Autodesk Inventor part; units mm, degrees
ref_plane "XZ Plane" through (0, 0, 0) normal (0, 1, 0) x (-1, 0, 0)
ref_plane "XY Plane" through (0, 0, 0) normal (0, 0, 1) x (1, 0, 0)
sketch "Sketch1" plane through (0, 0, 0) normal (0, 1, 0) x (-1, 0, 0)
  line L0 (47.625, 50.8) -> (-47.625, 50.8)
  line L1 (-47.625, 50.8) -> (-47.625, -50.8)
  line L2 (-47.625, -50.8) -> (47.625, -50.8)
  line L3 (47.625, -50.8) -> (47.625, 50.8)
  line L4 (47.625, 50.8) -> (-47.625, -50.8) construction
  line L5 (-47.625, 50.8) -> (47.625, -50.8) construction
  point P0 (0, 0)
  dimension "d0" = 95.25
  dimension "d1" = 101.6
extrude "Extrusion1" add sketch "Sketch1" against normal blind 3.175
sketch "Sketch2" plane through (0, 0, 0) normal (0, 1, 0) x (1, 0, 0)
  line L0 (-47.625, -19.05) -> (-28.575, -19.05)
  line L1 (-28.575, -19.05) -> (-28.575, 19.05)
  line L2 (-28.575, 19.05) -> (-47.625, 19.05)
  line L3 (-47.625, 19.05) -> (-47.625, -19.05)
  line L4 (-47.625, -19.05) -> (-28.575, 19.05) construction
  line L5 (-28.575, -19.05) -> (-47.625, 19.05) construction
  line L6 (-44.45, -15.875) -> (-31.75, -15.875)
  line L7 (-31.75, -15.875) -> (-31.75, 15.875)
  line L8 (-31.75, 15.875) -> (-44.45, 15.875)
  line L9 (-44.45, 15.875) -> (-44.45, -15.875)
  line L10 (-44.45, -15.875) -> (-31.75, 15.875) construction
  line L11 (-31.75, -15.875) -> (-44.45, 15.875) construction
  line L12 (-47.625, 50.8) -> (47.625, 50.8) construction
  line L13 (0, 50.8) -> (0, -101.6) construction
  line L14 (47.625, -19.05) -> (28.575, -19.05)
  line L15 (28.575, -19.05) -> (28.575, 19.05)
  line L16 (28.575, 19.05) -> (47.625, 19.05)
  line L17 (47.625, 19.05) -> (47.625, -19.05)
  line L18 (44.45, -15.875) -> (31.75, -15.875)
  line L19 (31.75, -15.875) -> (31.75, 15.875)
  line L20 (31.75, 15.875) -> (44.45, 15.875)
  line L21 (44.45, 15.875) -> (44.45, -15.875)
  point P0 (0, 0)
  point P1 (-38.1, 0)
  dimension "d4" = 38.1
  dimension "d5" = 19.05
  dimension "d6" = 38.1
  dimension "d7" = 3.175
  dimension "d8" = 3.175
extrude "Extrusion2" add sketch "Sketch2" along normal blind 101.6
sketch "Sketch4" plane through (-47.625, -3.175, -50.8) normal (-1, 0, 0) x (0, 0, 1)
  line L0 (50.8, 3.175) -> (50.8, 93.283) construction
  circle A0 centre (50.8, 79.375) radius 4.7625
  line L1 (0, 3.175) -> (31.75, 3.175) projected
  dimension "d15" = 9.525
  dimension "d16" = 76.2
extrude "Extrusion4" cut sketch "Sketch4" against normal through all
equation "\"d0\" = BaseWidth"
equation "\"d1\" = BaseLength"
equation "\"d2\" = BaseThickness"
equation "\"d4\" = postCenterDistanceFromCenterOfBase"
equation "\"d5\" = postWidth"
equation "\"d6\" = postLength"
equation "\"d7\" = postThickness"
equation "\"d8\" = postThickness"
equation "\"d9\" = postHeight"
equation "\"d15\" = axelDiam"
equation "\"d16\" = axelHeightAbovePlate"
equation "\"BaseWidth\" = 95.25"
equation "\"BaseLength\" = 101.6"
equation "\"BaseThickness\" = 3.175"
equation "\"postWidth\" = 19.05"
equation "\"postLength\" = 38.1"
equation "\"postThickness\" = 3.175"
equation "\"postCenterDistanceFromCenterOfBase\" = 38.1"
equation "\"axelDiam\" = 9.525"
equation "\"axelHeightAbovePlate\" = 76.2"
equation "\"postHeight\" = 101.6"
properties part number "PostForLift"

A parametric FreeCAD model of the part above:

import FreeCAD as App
import Part
import Sketcher
from FreeCAD import Vector
Q = App.Units.Quantity


def add_polygon(sketch, points):
    """Adds a closed chain of lines whose ends are joined by coincident constraints."""
    first, n = sketch.GeometryCount, len(points)
    for a, b in zip(points, points[1:] + points[:1]):
        sketch.addGeometry(Part.LineSegment(App.Vector(*a, 0), App.Vector(*b, 0)), False)
    for i in range(n):
        sketch.addConstraint(Sketcher.Constraint("Coincident", first + i, 2, first + (i + 1) % n, 1))

doc = App.newDocument("Part")
params = doc.addObject("Spreadsheet::Sheet", "Params")
for row, (alias, value) in enumerate([
    ("sketch1_height", "4 in"),
    ("sketch1_width", "3.75 in"),
    ("pad1_length", "0.125 in"),
    ("sketch2_height", "1.5 in"),
    ("sketch2_width", "0.75 in"),
    ("sketch2_width2", "0.5 in"),
    ("pad2_length", "4 in"),
    ("sketch3_diameter", "0.375 in"),
], start=1):
    params.set(f"A{row}", alias)
    params.set(f"B{row}", "=" + value)
    params.setAlias(f"B{row}", alias)

body = doc.addObject("PartDesign::Body", "Body")

sketch1 = doc.addObject("Sketcher::SketchObject", "Sketch")
body.addObject(sketch1)
sketch1.AttachmentSupport = (doc.XZ_Plane, [""])
sketch1.MapMode = "FlatFace"
add_polygon(sketch1, [(-48, -51), (-48, 51), (48, 51), (48, -51)])
sketch1.addConstraint([
    Sketcher.Constraint("Vertical", 0),
    Sketcher.Constraint("Horizontal", 1),
    Sketcher.Constraint("Vertical", 2),
    Sketcher.Constraint("Horizontal", 3),
    Sketcher.Constraint("Symmetric", 0, 2, 2, 2, -1, 1),
    Sketcher.Constraint("DistanceY", 0, 1, 0, 2, Q("4 in")),
    Sketcher.Constraint("DistanceX", 1, 1, 1, 2, Q("3.75 in")),
])
sketch1.setExpression("Constraints[9]", "Params.sketch1_height")
sketch1.setExpression("Constraints[10]", "Params.sketch1_width")
pad1 = doc.addObject("PartDesign::Pad", "Pad")
body.addObject(pad1)
pad1.Profile = sketch1
pad1.setExpression("Length", "Params.pad1_length")

sketch2 = doc.addObject("Sketcher::SketchObject", "Sketch001")
body.addObject(sketch2)
sketch2.AttachmentSupport = (doc.XZ_Plane, [""])
sketch2.MapMode = "FlatFace"
add_polygon(sketch2, [(-48, -19), (-48, 19), (-29, 19), (-29, -19)])
add_polygon(sketch2, [(-32, 16), (-44, 16), (-44, -16), (-32, -16)])
add_polygon(sketch2, [(29, 19), (48, 19), (48, -19), (29, -19)])
add_polygon(sketch2, [(44, -16), (44, 16), (32, 16), (32, -16)])
sketch2.addConstraint([
    Sketcher.Constraint("Vertical", 0),
    Sketcher.Constraint("Horizontal", 1),
    Sketcher.Constraint("Vertical", 2),
    Sketcher.Constraint("Horizontal", 3),
    Sketcher.Constraint("Horizontal", 4),
    Sketcher.Constraint("Vertical", 5),
    Sketcher.Constraint("Horizontal", 6),
    Sketcher.Constraint("Vertical", 7),
    Sketcher.Constraint("Horizontal", 8),
    Sketcher.Constraint("Vertical", 9),
    Sketcher.Constraint("Horizontal", 10),
    Sketcher.Constraint("Vertical", 11),
    Sketcher.Constraint("Vertical", 12),
    Sketcher.Constraint("Horizontal", 13),
    Sketcher.Constraint("Vertical", 14),
    Sketcher.Constraint("Horizontal", 15),
    Sketcher.Constraint("Symmetric", 3, 2, 8, 2, -1, 1),
    Sketcher.Constraint("Symmetric", 1, 2, 10, 2, -1, 1),
    Sketcher.Constraint("Symmetric", 5, 2, 12, 2, -1, 1),
    Sketcher.Constraint("Symmetric", 7, 2, 14, 2, -1, 1),
    Sketcher.Constraint("Horizontal", 1, 2, 8, 2),
    Sketcher.Constraint("Horizontal", 7, 2, 12, 2),
    Sketcher.Constraint("DistanceY", 0, 1, 0, 2, Q("1.5 in")),
    Sketcher.Constraint("DistanceX", 1, 1, 1, 2, Q("0.75 in")),
    Sketcher.Constraint("DistanceX", 4, 2, 4, 1, Q("0.5 in")),
    Sketcher.Constraint("DistanceX", 0, 2, 4, 2, Q("0.125 in")),
    Sketcher.Constraint("DistanceY", 4, 2, 0, 2, Q("0.125 in")),
    Sketcher.Constraint("DistanceX", 1, 2, 8, 2, Q("3 in")),
])
sketch2.setExpression("Constraints[38]", "Params.sketch2_height")
sketch2.setExpression("Constraints[39]", "Params.sketch2_width")
sketch2.setExpression("Constraints[40]", "Params.sketch2_width2")
pad2 = doc.addObject("PartDesign::Pad", "Pad001")
body.addObject(pad2)
pad2.Profile = sketch2
pad2.setExpression("Length", "Params.pad2_length")
pad2.Reversed = True

sketch3 = doc.addObject("Sketcher::SketchObject", "Sketch002")
body.addObject(sketch3)
sketch3.AttachmentSupport = (doc.YZ_Plane, [""])
sketch3.MapMode = "FlatFace"
sketch3.AttachmentOffset = App.Placement(Vector(0, 0, -1.875 * 25.4), App.Rotation())
sketch3.addGeometry(Part.Circle(Vector(76.2, 0, 0), Vector(0, 0, 1), 4.8), False)
sketch3.addConstraint([
    Sketcher.Constraint("PointOnObject", 0, 3, -1),
    Sketcher.Constraint("Diameter", 0, Q("0.375 in")),
    Sketcher.Constraint("DistanceX", -1, 1, 0, 3, Q("3 in")),
])
sketch3.setExpression("Constraints[1]", "Params.sketch3_diameter")
pocket1 = doc.addObject("PartDesign::Pocket", "Pocket")
body.addObject(pocket1)
pocket1.Profile = sketch3
pocket1.Type = "ThroughAll"
pocket1.Reversed = True

doc.recompute()
